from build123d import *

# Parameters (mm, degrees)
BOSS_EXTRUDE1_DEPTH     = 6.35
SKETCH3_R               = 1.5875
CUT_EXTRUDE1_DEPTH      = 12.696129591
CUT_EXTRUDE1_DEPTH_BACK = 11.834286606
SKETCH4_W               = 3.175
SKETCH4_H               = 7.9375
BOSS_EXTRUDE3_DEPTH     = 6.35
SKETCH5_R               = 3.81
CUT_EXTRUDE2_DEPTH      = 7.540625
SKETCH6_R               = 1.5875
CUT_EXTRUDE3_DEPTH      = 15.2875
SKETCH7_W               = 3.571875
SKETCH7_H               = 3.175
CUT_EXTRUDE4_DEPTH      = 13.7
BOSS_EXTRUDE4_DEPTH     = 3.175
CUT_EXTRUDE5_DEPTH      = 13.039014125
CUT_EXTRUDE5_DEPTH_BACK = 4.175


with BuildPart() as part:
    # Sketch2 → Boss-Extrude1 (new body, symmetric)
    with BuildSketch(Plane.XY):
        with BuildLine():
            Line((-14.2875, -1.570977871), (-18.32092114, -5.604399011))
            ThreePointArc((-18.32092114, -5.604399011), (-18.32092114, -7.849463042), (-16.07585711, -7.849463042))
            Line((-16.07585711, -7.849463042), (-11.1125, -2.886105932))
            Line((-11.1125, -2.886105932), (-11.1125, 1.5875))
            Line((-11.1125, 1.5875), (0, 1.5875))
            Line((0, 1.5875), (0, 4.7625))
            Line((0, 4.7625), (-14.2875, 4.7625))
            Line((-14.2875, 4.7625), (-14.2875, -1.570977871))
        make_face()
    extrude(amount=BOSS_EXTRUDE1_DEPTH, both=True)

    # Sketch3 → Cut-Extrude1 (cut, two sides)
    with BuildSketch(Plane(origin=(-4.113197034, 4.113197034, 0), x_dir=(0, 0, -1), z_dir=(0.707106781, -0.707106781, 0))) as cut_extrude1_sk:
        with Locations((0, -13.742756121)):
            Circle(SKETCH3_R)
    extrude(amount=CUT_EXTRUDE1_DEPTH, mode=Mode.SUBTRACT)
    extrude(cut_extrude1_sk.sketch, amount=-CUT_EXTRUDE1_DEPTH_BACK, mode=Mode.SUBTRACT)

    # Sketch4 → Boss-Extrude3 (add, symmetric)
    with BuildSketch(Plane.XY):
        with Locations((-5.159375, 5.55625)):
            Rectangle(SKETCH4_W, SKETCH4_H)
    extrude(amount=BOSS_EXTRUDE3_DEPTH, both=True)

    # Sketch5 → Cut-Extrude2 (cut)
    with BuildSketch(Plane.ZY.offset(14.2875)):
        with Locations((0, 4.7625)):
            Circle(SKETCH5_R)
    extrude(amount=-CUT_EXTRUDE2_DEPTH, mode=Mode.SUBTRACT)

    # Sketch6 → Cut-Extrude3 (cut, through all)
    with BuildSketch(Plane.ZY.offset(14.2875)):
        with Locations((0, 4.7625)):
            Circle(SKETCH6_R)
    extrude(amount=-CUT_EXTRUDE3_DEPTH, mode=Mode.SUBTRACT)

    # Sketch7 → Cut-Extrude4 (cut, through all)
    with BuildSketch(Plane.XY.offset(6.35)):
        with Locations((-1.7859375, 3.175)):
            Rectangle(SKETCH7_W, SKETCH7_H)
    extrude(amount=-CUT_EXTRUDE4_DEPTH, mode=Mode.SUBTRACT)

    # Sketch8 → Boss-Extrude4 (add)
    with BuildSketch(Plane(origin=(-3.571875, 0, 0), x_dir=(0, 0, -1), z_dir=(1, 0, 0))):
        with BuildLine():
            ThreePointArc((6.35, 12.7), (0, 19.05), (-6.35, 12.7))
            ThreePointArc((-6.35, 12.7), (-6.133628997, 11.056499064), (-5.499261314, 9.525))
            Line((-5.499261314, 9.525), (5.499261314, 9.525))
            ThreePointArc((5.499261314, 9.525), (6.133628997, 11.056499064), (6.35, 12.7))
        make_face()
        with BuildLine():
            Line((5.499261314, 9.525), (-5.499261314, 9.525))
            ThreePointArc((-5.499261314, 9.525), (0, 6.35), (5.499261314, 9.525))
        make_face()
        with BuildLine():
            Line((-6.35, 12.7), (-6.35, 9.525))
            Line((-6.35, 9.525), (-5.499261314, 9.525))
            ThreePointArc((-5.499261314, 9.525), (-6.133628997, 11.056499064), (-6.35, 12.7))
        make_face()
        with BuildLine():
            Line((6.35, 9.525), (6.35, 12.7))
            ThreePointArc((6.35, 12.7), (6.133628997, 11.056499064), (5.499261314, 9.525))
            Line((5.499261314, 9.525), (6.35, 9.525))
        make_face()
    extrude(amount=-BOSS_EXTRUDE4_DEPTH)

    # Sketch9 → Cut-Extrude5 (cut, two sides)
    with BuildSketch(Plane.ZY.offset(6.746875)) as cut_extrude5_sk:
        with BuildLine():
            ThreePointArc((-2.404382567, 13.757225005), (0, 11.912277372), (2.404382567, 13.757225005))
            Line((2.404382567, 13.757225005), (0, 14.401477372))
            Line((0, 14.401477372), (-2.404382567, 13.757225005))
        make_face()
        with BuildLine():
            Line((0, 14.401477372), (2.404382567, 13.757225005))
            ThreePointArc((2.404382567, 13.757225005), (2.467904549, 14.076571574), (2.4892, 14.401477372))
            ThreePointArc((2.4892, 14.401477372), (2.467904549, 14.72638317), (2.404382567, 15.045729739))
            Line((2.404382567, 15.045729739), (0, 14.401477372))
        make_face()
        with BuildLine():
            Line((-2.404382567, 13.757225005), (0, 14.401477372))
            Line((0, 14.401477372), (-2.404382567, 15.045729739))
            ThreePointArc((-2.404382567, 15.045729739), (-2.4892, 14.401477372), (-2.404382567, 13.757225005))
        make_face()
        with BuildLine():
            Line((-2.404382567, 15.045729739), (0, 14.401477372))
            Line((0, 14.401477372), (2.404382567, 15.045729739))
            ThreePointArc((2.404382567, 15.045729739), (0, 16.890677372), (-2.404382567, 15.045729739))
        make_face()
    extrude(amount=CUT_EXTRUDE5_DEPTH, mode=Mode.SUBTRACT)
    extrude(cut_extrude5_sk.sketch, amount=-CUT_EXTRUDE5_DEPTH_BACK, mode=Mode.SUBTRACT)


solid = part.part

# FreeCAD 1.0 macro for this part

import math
import FreeCAD as App
import Part
import Sketcher
from FreeCAD import Vector
Q = App.Units.Quantity


def add_polygon(sketch, points):
    """Adds a closed chain of lines whose ends are joined by coincident constraints."""
    first, n = sketch.GeometryCount, len(points)
    for a, b in zip(points, points[1:] + points[:1]):
        sketch.addGeometry(Part.LineSegment(App.Vector(*a, 0), App.Vector(*b, 0)), False)
    for i in range(n):
        sketch.addConstraint(Sketcher.Constraint("Coincident", first + i, 2, first + (i + 1) % n, 1))

doc = App.newDocument("Part")
params = doc.addObject("Spreadsheet::Sheet", "Params")
for row, (alias, value) in enumerate([
    ("sketch1_radius", "0.0625 in"),
    ("sketch1_width", "0.4375 in"),
    ("sketch1_width2", "0.5625 in"),
    ("sketch1_height", "0.125 in"),
    ("pad1_length", "0.5 in"),
    ("sketch2_diameter", "0.125 in"),
    ("sketch3_width", "0.125 in"),
    ("sketch3_height", "0.3125 in"),
    ("pad2_length", "0.5 in"),
    ("sketch4_diameter", "0.3 in"),
    ("pocket2_length", "0.296875 in"),
    ("sketch5_diameter", "0.125 in"),
    ("sketch6_width", "0.140625 in"),
    ("sketch6_height", "0.125 in"),
    ("sketch7_radius", "0.25 in"),
    ("sketch7_width", "0.125 in"),
    ("pad3_length", "0.125 in"),
    ("sketch8_radius", "0.098 in"),
], start=1):
    params.set(f"A{row}", alias)
    params.set(f"B{row}", "=" + value)
    params.setAlias(f"B{row}", alias)

body = doc.addObject("PartDesign::Body", "Body")

sketch1 = body.newObject("Sketcher::SketchObject", "Sketch")
sketch1.AttachmentSupport = (doc.getObject("XY_Plane"), [""])
sketch1.MapMode = "FlatFace"
sketch1.addGeometry(Part.LineSegment(Vector(-14.3, -1.6, 0), Vector(-18.3, -5.6, 0)), False)
sketch1.addGeometry(Part.ArcOfCircle(Part.Circle(Vector(-17.2, -6.7, 0), Vector(0, 0, 1), 1.6), math.radians(135), math.radians(315)), False)
sketch1.addGeometry(Part.LineSegment(Vector(-16.1, -7.8, 0), Vector(-11.1, -2.9, 0)), False)
sketch1.addGeometry(Part.LineSegment(Vector(-11.1, -2.9, 0), Vector(-11.1, 1.6, 0)), False)
sketch1.addGeometry(Part.LineSegment(Vector(-11.1, 1.6, 0), Vector(0, 1.6, 0)), False)
sketch1.addGeometry(Part.LineSegment(Vector(0, 1.6, 0), Vector(0, 4.8, 0)), False)
sketch1.addGeometry(Part.LineSegment(Vector(0, 4.8, 0), Vector(-14.3, 4.8, 0)), False)
sketch1.addGeometry(Part.LineSegment(Vector(-14.3, 4.8, 0), Vector(-14.3, -1.6, 0)), False)
sketch1.addConstraint(Sketcher.Constraint("Tangent", 0, 2, 1, 1))
sketch1.addConstraint(Sketcher.Constraint("Tangent", 1, 2, 2, 1))
sketch1.addConstraint(Sketcher.Constraint("Coincident", 2, 2, 3, 1))
sketch1.addConstraint(Sketcher.Constraint("Coincident", 3, 2, 4, 1))
sketch1.addConstraint(Sketcher.Constraint("Coincident", 4, 2, 5, 1))
sketch1.addConstraint(Sketcher.Constraint("Coincident", 5, 2, 6, 1))
sketch1.addConstraint(Sketcher.Constraint("Coincident", 6, 2, 7, 1))
sketch1.addConstraint(Sketcher.Constraint("Coincident", 7, 2, 0, 1))
sketch1.addConstraint(Sketcher.Constraint("Vertical", 3))
sketch1.addConstraint(Sketcher.Constraint("Horizontal", 4))
sketch1.addConstraint(Sketcher.Constraint("Vertical", 5))
sketch1.addConstraint(Sketcher.Constraint("Horizontal", 6))
sketch1.addConstraint(Sketcher.Constraint("Vertical", 7))
sketch1.addConstraint(Sketcher.Constraint("PointOnObject", 4, 2, -2))
sketch1.addConstraint(Sketcher.Constraint("Parallel", 0, 2))
sketch1.addConstraint(Sketcher.Constraint("Angle", 0, Q("-135 deg")))
sketch1.addConstraint(Sketcher.Constraint("Radius", 1, Q("0.0625 in")))
sketch1.addConstraint(Sketcher.Constraint("DistanceX", 4, 1, 4, 2, Q("0.4375 in")))
sketch1.addConstraint(Sketcher.Constraint("DistanceX", 6, 2, 6, 1, Q("0.5625 in")))
sketch1.addConstraint(Sketcher.Constraint("DistanceY", 5, 1, 5, 2, Q("0.125 in")))
sketch1.addConstraint(Sketcher.Constraint("DistanceY", -1, 1, 3, 2, Q("0.0625 in")))
sketch1.addConstraint(Sketcher.Constraint("DistanceY", 0, 2, -1, 1, Q("5.604399 mm")))
sketch1.addConstraint(Sketcher.Constraint("Distance", 0, Q("5.704119 mm")))
sketch1.setExpression("Constraints[16]", "Params.sketch1_radius")
sketch1.setExpression("Constraints[17]", "Params.sketch1_width")
sketch1.setExpression("Constraints[18]", "Params.sketch1_width2")
sketch1.setExpression("Constraints[19]", "Params.sketch1_height")
pad1 = body.newObject("PartDesign::Pad", "Pad")
pad1.Profile = sketch1
pad1.setExpression("Length", "Params.pad1_length")
pad1.Midplane = True

sketch2 = body.newObject("Sketcher::SketchObject", "Sketch001")
sketch2.Placement = App.Placement(Vector(-4.113197, 4.113197, 0), App.Rotation(Vector(0, 0, -1), Vector(0.707106781, 0.707106781, 0), Vector(0.707106781, -0.707106781, 0), "ZXY"))
sketch2.addGeometry(Part.Circle(Vector(0, -13.7, 0), Vector(0, 0, 1), 1.6), False)
sketch2.addConstraint(Sketcher.Constraint("PointOnObject", 0, 3, -2))
sketch2.addConstraint(Sketcher.Constraint("Diameter", 0, Q("0.125 in")))
sketch2.addConstraint(Sketcher.Constraint("DistanceY", 0, 3, -1, 1, Q("13.742756 mm")))
sketch2.setExpression("Constraints[1]", "Params.sketch2_diameter")
pocket1 = body.newObject("PartDesign::Pocket", "Pocket")
pocket1.Profile = sketch2
pocket1.Type = "ThroughAll"
pocket1.Midplane = True

sketch3 = body.newObject("Sketcher::SketchObject", "Sketch002")
sketch3.AttachmentSupport = (doc.getObject("XY_Plane"), [""])
sketch3.MapMode = "FlatFace"
add_polygon(sketch3, [(-6.7, 9.5), (-6.7, 1.6), (-3.6, 1.6), (-3.6, 9.5)])
sketch3.addConstraint(Sketcher.Constraint("Vertical", 0))
sketch3.addConstraint(Sketcher.Constraint("Horizontal", 1))
sketch3.addConstraint(Sketcher.Constraint("Vertical", 2))
sketch3.addConstraint(Sketcher.Constraint("Horizontal", 3))
sketch3.addConstraint(Sketcher.Constraint("DistanceX", 1, 1, 1, 2, Q("0.125 in")))
sketch3.addConstraint(Sketcher.Constraint("DistanceY", 0, 2, 0, 1, Q("0.3125 in")))
sketch3.addConstraint(Sketcher.Constraint("DistanceX", 0, 2, -1, 1, Q("0.265625 in")))
sketch3.addConstraint(Sketcher.Constraint("DistanceY", -1, 1, 0, 2, Q("0.0625 in")))
sketch3.setExpression("Constraints[8]", "Params.sketch3_width")
sketch3.setExpression("Constraints[9]", "Params.sketch3_height")
pad2 = body.newObject("PartDesign::Pad", "Pad001")
pad2.Profile = sketch3
pad2.setExpression("Length", "Params.pad2_length")
pad2.Midplane = True

sketch4 = body.newObject("Sketcher::SketchObject", "Sketch003")
sketch4.AttachmentSupport = (doc.getObject("YZ_Plane"), [""])
sketch4.MapMode = "FlatFace"
sketch4.AttachmentOffset = App.Placement(Vector(0, 0, -0.5625 * 25.4), App.Rotation())
sketch4.addGeometry(Part.Circle(Vector(4.8, 0, 0), Vector(0, 0, 1), 3.8), False)
sketch4.addConstraint(Sketcher.Constraint("PointOnObject", 0, 3, -1))
sketch4.addConstraint(Sketcher.Constraint("Diameter", 0, Q("0.3 in")))
sketch4.addConstraint(Sketcher.Constraint("DistanceX", -1, 1, 0, 3, Q("0.1875 in")))
sketch4.setExpression("Constraints[1]", "Params.sketch4_diameter")
pocket2 = body.newObject("PartDesign::Pocket", "Pocket001")
pocket2.Profile = sketch4
pocket2.setExpression("Length", "Params.pocket2_length")
pocket2.Reversed = True

sketch5 = body.newObject("Sketcher::SketchObject", "Sketch004")
sketch5.AttachmentSupport = (doc.getObject("YZ_Plane"), [""])
sketch5.MapMode = "FlatFace"
sketch5.AttachmentOffset = App.Placement(Vector(0, 0, -0.5625 * 25.4), App.Rotation())
sketch5.addGeometry(Part.Circle(Vector(4.8, 0, 0), Vector(0, 0, 1), 1.6), False)
sketch5.addConstraint(Sketcher.Constraint("PointOnObject", 0, 3, -1))
sketch5.addConstraint(Sketcher.Constraint("Diameter", 0, Q("0.125 in")))
sketch5.addConstraint(Sketcher.Constraint("DistanceX", -1, 1, 0, 3, Q("0.1875 in")))
sketch5.setExpression("Constraints[1]", "Params.sketch5_diameter")
pocket3 = body.newObject("PartDesign::Pocket", "Pocket002")
pocket3.Profile = sketch5
pocket3.Type = "ThroughAll"
pocket3.Reversed = True

sketch6 = body.newObject("Sketcher::SketchObject", "Sketch005")
sketch6.AttachmentSupport = (doc.getObject("XY_Plane"), [""])
sketch6.MapMode = "FlatFace"
sketch6.AttachmentOffset = App.Placement(Vector(0, 0, 0.25 * 25.4), App.Rotation())
add_polygon(sketch6, [(-3.6, 4.8), (-3.6, 1.6), (0, 1.6), (0, 4.8)])
sketch6.addConstraint(Sketcher.Constraint("Vertical", 0))
sketch6.addConstraint(Sketcher.Constraint("Horizontal", 1))
sketch6.addConstraint(Sketcher.Constraint("Vertical", 2))
sketch6.addConstraint(Sketcher.Constraint("Horizontal", 3))
sketch6.addConstraint(Sketcher.Constraint("PointOnObject", 1, 2, -2))
sketch6.addConstraint(Sketcher.Constraint("DistanceX", 1, 1, 1, 2, Q("0.140625 in")))
sketch6.addConstraint(Sketcher.Constraint("DistanceY", 0, 2, 0, 1, Q("0.125 in")))
sketch6.addConstraint(Sketcher.Constraint("DistanceY", -1, 1, 0, 2, Q("0.0625 in")))
sketch6.setExpression("Constraints[9]", "Params.sketch6_width")
sketch6.setExpression("Constraints[10]", "Params.sketch6_height")
pocket4 = body.newObject("PartDesign::Pocket", "Pocket003")
pocket4.Profile = sketch6
pocket4.Type = "ThroughAll"

sketch7 = body.newObject("Sketcher::SketchObject", "Sketch006")
sketch7.AttachmentSupport = (doc.getObject("YZ_Plane"), [""])
sketch7.MapMode = "FlatFace"
sketch7.AttachmentOffset = App.Placement(Vector(0, 0, -0.140625 * 25.4), App.Rotation())
sketch7.addGeometry(Part.ArcOfCircle(Part.Circle(Vector(12.7, 0, 0), Vector(0, 0, 1), 6.3), math.radians(-90), math.radians(90)), False)
sketch7.addGeometry(Part.LineSegment(Vector(12.7, 6.3, 0), Vector(9.5, 6.3, 0)), False)
sketch7.addGeometry(Part.LineSegment(Vector(9.5, 6.3, 0), Vector(9.5, 5.5, 0)), False)
sketch7.addGeometry(Part.ArcOfCircle(Part.Circle(Vector(12.7, 0, 0), Vector(0, 0, 1), 6.3), math.radians(120), math.radians(240)), False)
sketch7.addGeometry(Part.LineSegment(Vector(9.5, -5.5, 0), Vector(9.5, -6.3, 0)), False)
sketch7.addGeometry(Part.LineSegment(Vector(9.5, -6.3, 0), Vector(12.7, -6.3, 0)), False)
sketch7.addConstraint(Sketcher.Constraint("Tangent", 0, 2, 1, 1))
sketch7.addConstraint(Sketcher.Constraint("Coincident", 1, 2, 2, 1))
sketch7.addConstraint(Sketcher.Constraint("Coincident", 2, 2, 3, 1))
sketch7.addConstraint(Sketcher.Constraint("Coincident", 3, 2, 4, 1))
sketch7.addConstraint(Sketcher.Constraint("Coincident", 4, 2, 5, 1))
sketch7.addConstraint(Sketcher.Constraint("Tangent", 5, 2, 0, 1))
sketch7.addConstraint(Sketcher.Constraint("Horizontal", 1))
sketch7.addConstraint(Sketcher.Constraint("Vertical", 2))
sketch7.addConstraint(Sketcher.Constraint("Vertical", 4))
sketch7.addConstraint(Sketcher.Constraint("Horizontal", 5))
sketch7.addConstraint(Sketcher.Constraint("Coincident", 3, 3, 0, 3))
sketch7.addConstraint(Sketcher.Constraint("Equal", 0, 3))
sketch7.addConstraint(Sketcher.Constraint("Symmetric", 2, 2, 3, 2, -1))
sketch7.addConstraint(Sketcher.Constraint("Radius", 0, Q("0.25 in")))
sketch7.addConstraint(Sketcher.Constraint("DistanceX", -1, 1, 0, 3, Q("0.5 in")))
sketch7.addConstraint(Sketcher.Constraint("DistanceX", 1, 2, 1, 1, Q("0.125 in")))
sketch7.setExpression("Constraints[13]", "Params.sketch7_radius")
sketch7.setExpression("Constraints[15]", "Params.sketch7_width")
pad3 = body.newObject("PartDesign::Pad", "Pad002")
pad3.Profile = sketch7
pad3.setExpression("Length", "Params.pad3_length")
pad3.Reversed = True

sketch8 = body.newObject("Sketcher::SketchObject", "Sketch007")
sketch8.AttachmentSupport = (doc.getObject("YZ_Plane"), [""])
sketch8.MapMode = "FlatFace"
sketch8.AttachmentOffset = App.Placement(Vector(0, 0, -0.265625 * 25.4), App.Rotation())
sketch8.addGeometry(Part.ArcOfCircle(Part.Circle(Vector(14.4, 0, 0), Vector(0, 0, 1), 2.5), math.radians(75), math.radians(90)), False)
sketch8.addGeometry(Part.ArcOfCircle(Part.Circle(Vector(14.4, 0, 0), Vector(0, 0, 1), 2.5), math.radians(-75), math.radians(75)), False)
sketch8.addGeometry(Part.ArcOfCircle(Part.Circle(Vector(14.4, 0, 0), Vector(0, 0, 1), 2.5), math.radians(-105), math.radians(-75)), False)
sketch8.addGeometry(Part.ArcOfCircle(Part.Circle(Vector(14.4, 0, 0), Vector(0, 0, 1), 2.5), math.radians(105), math.radians(255)), False)
sketch8.addGeometry(Part.ArcOfCircle(Part.Circle(Vector(14.4, 0, 0), Vector(0, 0, 1), 2.5), math.radians(90), math.radians(105)), False)
sketch8.addConstraint(Sketcher.Constraint("Tangent", 0, 1, 1, 2))
sketch8.addConstraint(Sketcher.Constraint("Tangent", 1, 1, 2, 2))
sketch8.addConstraint(Sketcher.Constraint("Tangent", 2, 1, 3, 2))
sketch8.addConstraint(Sketcher.Constraint("Tangent", 3, 1, 4, 2))
sketch8.addConstraint(Sketcher.Constraint("Tangent", 4, 1, 0, 2))
sketch8.addConstraint(Sketcher.Constraint("Coincident", 2, 3, 0, 3))
sketch8.addConstraint(Sketcher.Constraint("Symmetric", 0, 1, 1, 1, -1))
sketch8.addConstraint(Sketcher.Constraint("Horizontal", 1, 1, 2, 1))
sketch8.addConstraint(Sketcher.Constraint("Horizontal", 0, 1, 3, 1))
sketch8.addConstraint(Sketcher.Constraint("Vertical", 3, 3, 4, 1))
sketch8.addConstraint(Sketcher.Constraint("Radius", 0, Q("0.098 in")))
sketch8.addConstraint(Sketcher.Constraint("DistanceX", -1, 1, 0, 1, Q("15.04573 mm")))
sketch8.addConstraint(Sketcher.Constraint("DistanceX", -1, 1, 0, 3, Q("14.401477 mm")))
sketch8.setExpression("Constraints[10]", "Params.sketch8_radius")
pocket5 = body.newObject("PartDesign::Pocket", "Pocket004")
pocket5.Profile = sketch8
pocket5.Type = "ThroughAll"
pocket5.Midplane = True

doc.recompute()
